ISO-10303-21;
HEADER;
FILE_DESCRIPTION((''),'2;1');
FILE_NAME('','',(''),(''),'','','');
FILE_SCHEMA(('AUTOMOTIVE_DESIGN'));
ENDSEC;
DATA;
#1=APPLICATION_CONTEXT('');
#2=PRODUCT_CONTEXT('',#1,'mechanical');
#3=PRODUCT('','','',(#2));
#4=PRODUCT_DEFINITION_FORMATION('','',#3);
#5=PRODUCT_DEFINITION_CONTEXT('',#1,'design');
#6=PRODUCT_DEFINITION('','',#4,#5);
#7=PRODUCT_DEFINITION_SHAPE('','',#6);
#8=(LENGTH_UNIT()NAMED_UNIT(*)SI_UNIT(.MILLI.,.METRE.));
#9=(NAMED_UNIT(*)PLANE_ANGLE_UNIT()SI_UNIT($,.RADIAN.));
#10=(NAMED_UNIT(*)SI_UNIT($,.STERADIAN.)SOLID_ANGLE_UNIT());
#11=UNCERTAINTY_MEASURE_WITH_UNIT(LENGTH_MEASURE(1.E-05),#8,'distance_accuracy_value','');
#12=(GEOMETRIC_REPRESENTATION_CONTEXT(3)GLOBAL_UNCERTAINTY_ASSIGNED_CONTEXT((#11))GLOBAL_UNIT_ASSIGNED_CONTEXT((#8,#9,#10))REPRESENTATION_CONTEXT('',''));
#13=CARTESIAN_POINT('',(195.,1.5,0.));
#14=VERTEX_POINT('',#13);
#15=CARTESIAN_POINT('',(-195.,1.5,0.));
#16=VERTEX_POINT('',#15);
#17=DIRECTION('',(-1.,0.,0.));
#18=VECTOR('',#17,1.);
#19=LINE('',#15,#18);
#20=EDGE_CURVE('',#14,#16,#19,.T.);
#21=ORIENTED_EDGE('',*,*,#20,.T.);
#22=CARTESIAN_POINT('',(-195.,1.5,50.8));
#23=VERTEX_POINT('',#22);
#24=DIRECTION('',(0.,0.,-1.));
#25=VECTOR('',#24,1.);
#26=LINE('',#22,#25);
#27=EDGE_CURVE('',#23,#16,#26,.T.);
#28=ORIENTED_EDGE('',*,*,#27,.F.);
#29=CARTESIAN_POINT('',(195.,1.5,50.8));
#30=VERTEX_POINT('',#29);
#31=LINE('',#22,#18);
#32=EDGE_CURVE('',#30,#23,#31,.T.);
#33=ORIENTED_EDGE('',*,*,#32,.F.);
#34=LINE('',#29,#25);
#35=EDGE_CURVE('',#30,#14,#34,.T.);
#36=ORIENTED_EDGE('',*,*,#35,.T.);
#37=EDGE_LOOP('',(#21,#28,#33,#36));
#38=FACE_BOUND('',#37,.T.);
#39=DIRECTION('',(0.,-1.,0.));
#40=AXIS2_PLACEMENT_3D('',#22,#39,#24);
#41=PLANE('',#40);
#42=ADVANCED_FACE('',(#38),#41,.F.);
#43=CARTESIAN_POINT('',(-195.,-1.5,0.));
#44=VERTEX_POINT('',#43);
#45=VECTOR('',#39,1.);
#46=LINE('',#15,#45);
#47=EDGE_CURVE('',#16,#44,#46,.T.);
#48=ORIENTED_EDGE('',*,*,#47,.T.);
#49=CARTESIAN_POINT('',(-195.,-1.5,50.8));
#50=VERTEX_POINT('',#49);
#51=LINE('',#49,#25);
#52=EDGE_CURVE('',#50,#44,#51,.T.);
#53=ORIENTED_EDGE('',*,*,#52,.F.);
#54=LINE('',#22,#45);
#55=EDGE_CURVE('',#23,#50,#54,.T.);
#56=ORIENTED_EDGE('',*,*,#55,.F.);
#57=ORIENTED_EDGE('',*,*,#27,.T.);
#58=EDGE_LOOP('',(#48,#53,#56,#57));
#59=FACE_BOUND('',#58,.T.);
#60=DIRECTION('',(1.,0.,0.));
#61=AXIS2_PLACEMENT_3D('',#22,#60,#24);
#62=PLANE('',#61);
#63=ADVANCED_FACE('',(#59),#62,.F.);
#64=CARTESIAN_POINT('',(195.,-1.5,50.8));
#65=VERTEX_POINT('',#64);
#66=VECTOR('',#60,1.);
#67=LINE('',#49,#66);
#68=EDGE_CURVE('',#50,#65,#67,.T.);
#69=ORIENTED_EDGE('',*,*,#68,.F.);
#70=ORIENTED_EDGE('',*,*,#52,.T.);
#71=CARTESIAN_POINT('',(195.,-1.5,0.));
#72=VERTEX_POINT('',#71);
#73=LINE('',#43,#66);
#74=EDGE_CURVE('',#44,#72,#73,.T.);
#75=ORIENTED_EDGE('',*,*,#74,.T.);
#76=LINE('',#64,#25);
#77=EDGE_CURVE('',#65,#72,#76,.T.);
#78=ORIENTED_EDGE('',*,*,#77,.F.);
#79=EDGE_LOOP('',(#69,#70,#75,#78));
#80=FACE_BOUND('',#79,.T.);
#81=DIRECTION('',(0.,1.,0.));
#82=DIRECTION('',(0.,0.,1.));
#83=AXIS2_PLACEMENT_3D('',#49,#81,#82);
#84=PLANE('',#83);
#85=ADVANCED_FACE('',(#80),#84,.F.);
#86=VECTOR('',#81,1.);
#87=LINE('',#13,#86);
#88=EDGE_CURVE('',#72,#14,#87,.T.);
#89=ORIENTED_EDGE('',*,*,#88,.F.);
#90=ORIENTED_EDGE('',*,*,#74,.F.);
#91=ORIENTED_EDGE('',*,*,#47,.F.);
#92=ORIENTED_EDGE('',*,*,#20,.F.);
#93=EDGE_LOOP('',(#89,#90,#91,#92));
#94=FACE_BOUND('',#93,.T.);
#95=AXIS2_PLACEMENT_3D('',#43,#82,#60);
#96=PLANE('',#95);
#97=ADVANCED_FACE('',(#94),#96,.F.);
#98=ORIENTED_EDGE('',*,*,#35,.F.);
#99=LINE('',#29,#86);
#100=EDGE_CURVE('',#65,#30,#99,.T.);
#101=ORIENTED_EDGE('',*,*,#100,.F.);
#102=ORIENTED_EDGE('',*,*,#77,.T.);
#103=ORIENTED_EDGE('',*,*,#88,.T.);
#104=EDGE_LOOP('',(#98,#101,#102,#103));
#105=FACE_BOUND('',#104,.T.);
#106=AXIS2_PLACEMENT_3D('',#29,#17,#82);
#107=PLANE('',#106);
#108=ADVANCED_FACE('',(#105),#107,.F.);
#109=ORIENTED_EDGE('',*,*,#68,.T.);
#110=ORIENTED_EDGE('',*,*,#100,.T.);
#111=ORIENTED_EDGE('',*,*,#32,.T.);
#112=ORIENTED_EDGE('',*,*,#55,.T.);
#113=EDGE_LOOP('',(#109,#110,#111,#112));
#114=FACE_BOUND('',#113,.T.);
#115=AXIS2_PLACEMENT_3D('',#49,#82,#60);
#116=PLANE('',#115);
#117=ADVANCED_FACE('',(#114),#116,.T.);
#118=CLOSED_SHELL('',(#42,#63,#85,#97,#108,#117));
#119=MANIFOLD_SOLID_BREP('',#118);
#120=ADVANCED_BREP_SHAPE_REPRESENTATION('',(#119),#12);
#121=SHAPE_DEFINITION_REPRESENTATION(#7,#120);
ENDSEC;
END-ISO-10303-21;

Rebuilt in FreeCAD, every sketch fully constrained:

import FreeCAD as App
import Part
import Sketcher
from FreeCAD import Vector


def add_polygon(sketch, points):
    """Adds a closed chain of lines whose ends are joined by coincident constraints."""
    first, n = sketch.GeometryCount, len(points)
    for a, b in zip(points, points[1:] + points[:1]):
        sketch.addGeometry(Part.LineSegment(App.Vector(*a, 0), App.Vector(*b, 0)), False)
    for i in range(n):
        sketch.addConstraint(Sketcher.Constraint("Coincident", first + i, 2, first + (i + 1) % n, 1))

doc = App.newDocument("Part")
body = doc.addObject("PartDesign::Body", "Body")

# Sketch on XY plane
sketch1 = body.newObject("Sketcher::SketchObject", "Sketch")
sketch1.AttachmentSupport = (doc.getObject("XY_Plane"), [""])
sketch1.MapMode = "FlatFace"
add_polygon(sketch1, [(-195, 1.5), (-195, -1.5), (195, -1.5), (195, 1.5)])  # lines 0-3
sketch1.addConstraint([
    Sketcher.Constraint("Vertical", 0),
    Sketcher.Constraint("Horizontal", 1),
    Sketcher.Constraint("Vertical", 2),
    Sketcher.Constraint("Horizontal", 3),
    Sketcher.Constraint("Symmetric", 0, 2, 2, 2, -1, 1),
    Sketcher.Constraint("DistanceX", 1, 1, 1, 2, 390.0),
    Sketcher.Constraint("DistanceY", 0, 2, 0, 1, 3.0),
])
pad1 = body.newObject("PartDesign::Pad", "Pad")
pad1.Profile = sketch1
pad1.Length = 50.8

doc.recompute()
